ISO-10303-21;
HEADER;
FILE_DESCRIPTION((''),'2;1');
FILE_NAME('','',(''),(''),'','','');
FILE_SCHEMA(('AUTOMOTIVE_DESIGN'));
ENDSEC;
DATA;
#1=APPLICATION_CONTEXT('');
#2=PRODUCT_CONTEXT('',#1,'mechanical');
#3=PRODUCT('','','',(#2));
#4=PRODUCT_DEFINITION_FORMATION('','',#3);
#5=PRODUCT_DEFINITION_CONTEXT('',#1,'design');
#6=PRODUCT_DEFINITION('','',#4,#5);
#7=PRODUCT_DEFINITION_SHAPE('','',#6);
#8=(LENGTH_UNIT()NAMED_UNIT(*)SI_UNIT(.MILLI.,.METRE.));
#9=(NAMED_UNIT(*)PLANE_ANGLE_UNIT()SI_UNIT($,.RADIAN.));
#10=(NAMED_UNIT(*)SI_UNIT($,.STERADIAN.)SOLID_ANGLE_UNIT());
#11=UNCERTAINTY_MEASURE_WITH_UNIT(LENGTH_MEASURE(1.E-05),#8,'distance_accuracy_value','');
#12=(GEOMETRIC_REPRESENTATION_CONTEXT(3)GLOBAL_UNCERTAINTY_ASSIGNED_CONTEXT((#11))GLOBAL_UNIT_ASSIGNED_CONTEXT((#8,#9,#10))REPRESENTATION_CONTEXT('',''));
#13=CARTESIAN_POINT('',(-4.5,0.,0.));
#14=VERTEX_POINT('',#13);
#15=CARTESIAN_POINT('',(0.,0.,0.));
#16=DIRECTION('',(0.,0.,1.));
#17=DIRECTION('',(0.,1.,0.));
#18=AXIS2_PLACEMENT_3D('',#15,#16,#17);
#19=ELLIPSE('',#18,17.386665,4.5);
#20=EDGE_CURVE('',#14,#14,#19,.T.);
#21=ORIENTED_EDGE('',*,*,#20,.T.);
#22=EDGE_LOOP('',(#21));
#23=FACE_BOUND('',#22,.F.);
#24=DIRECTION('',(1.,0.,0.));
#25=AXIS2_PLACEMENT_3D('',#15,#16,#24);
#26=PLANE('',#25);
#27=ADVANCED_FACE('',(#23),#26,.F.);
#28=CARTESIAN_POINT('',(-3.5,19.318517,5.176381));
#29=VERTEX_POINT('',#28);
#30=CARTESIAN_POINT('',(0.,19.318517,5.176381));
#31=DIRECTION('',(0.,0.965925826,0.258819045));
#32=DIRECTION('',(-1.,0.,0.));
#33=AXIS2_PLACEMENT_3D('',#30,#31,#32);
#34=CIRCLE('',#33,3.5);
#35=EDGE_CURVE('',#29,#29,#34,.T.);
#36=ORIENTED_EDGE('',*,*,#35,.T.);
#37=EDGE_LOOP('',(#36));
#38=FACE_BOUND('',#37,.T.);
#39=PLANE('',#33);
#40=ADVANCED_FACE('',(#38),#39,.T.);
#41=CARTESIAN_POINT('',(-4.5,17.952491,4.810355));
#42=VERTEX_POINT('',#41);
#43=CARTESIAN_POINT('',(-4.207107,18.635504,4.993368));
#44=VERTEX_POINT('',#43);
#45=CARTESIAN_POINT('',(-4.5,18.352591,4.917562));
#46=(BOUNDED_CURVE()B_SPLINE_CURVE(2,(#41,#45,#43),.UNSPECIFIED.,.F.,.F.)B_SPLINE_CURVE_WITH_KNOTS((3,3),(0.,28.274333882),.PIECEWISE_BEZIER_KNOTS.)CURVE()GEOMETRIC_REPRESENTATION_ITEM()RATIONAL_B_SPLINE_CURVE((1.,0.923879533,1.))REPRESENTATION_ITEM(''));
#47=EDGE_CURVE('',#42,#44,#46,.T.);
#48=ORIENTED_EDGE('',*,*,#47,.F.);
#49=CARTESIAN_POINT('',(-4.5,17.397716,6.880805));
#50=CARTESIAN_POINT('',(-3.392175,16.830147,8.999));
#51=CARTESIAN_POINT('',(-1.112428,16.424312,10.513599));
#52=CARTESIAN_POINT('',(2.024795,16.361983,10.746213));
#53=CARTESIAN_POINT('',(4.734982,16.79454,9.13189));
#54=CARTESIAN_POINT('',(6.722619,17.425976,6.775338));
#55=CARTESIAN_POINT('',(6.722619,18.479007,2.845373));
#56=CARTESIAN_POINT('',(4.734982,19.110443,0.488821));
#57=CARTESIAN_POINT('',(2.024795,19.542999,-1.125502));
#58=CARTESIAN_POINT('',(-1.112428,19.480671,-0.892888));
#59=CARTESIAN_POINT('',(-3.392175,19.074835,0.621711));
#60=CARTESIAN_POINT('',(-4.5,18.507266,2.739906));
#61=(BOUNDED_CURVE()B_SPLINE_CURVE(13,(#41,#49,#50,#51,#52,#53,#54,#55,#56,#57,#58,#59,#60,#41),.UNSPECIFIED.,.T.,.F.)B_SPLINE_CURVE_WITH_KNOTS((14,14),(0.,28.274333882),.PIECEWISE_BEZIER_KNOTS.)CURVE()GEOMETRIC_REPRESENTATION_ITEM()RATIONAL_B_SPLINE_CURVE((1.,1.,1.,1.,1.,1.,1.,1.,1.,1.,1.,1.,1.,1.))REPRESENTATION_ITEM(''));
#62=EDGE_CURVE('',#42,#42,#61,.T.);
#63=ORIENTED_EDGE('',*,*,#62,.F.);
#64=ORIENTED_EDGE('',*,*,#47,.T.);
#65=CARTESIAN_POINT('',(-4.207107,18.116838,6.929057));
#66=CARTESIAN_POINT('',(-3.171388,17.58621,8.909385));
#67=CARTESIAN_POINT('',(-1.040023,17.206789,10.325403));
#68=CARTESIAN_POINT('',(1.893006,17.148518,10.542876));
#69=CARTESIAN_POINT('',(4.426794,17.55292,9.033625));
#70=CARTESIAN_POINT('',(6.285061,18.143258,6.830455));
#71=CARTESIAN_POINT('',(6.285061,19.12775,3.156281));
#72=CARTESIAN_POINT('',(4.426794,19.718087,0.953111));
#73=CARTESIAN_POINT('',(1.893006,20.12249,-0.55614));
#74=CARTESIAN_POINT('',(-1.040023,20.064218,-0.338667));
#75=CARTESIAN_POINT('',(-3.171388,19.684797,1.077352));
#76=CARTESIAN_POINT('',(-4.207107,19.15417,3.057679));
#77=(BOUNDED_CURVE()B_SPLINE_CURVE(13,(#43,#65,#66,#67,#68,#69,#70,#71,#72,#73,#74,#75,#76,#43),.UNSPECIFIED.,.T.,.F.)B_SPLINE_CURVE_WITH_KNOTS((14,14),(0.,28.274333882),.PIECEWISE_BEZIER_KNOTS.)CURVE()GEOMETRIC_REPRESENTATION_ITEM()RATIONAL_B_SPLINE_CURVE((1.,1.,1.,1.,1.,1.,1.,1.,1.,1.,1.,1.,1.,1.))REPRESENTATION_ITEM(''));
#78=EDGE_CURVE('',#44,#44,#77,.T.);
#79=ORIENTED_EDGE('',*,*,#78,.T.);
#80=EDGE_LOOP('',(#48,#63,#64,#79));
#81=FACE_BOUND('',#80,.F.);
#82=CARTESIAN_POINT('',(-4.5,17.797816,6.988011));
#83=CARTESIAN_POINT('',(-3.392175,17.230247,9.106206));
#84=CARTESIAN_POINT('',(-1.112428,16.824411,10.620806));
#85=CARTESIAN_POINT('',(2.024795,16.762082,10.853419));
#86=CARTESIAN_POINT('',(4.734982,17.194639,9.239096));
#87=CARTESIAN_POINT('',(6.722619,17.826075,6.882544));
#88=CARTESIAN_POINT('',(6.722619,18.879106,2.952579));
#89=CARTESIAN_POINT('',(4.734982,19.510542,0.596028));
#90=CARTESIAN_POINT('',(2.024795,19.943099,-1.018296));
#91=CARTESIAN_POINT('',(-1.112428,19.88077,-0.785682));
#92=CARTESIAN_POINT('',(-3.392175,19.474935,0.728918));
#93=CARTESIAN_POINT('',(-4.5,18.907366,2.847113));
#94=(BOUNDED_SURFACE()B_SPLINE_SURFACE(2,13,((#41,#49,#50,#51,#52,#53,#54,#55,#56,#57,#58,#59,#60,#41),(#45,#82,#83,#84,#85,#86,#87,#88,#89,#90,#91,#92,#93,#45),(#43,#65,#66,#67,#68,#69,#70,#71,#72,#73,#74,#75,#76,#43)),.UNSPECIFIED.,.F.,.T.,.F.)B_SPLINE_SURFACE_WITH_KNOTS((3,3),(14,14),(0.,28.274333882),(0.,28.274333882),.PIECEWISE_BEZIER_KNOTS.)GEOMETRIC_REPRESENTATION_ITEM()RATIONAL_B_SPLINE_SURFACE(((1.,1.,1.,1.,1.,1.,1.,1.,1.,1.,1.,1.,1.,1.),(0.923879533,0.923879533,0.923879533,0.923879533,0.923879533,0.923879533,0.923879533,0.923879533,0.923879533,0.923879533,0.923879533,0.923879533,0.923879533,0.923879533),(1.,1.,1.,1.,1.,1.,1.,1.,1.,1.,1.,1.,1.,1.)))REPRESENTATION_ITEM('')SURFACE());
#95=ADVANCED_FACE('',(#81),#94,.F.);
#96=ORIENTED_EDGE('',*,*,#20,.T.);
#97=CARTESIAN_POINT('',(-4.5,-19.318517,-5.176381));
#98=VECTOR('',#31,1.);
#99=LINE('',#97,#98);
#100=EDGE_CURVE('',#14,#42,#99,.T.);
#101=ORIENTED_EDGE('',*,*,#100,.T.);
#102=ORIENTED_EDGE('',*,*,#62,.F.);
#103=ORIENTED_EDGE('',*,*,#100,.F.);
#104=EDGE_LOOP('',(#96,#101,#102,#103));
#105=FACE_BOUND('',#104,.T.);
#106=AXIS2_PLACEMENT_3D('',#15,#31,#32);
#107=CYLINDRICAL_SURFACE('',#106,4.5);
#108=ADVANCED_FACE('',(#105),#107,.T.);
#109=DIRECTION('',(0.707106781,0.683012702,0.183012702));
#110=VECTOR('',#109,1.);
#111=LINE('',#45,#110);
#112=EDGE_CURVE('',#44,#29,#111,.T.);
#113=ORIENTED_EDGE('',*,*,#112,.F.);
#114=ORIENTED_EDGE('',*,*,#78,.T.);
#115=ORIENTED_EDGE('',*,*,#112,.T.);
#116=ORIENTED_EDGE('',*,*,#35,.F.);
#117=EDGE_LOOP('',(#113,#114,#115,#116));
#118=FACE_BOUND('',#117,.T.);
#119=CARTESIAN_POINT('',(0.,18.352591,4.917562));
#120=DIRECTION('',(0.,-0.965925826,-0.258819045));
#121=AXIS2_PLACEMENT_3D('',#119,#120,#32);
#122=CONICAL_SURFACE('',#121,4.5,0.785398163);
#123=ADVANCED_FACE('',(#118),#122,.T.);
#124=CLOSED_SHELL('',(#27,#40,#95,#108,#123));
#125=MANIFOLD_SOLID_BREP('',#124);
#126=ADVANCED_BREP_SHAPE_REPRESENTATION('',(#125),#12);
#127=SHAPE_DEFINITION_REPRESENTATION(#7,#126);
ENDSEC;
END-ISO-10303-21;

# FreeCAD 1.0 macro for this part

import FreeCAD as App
import Part
import Sketcher
from FreeCAD import Vector
Q = App.Units.Quantity


def edges_at(feature, points):
    """Names of the edges that pass closest to the given points."""
    edges = feature.Shape.Edges
    near = lambda p: min(range(len(edges)), key=lambda i: edges[i].distToShape(Part.Vertex(*p))[0])
    return sorted({f"Edge{near(p) + 1}" for p in points})


def add_polygon(sketch, points):
    """Adds a closed chain of lines whose ends are joined by coincident constraints."""
    first, n = sketch.GeometryCount, len(points)
    for a, b in zip(points, points[1:] + points[:1]):
        sketch.addGeometry(Part.LineSegment(App.Vector(*a, 0), App.Vector(*b, 0)), False)
    for i in range(n):
        sketch.addConstraint(Sketcher.Constraint("Coincident", first + i, 2, first + (i + 1) % n, 1))

doc = App.newDocument("Part")
body = doc.addObject("PartDesign::Body", "Body")

# Sketch on an angled plane
sketch1 = body.newObject("Sketcher::SketchObject", "Sketch")
sketch1.Placement = App.Placement(Vector(0, 0, 0), App.Rotation(Vector(-1, 0, 0), Vector(0, -0.258819045, 0.965925826), Vector(0, 0.965925826, 0.258819045), "ZXY"))
sketch1.addGeometry(Part.Circle(Vector(0, 0, 0), Vector(0, 0, 1), 4.5), False)
sketch1.addConstraint([
    Sketcher.Constraint("Coincident", 0, 3, -1, 1),
    Sketcher.Constraint("Diameter", 0, Q("9 mm")),
])
pad1 = body.newObject("PartDesign::Pad", "Pad")
pad1.Profile = sketch1
pad1.Length = 40
pad1.Midplane = True

# Sketch on XY plane
sketch2 = body.newObject("Sketcher::SketchObject", "Sketch001")
sketch2.AttachmentSupport = (doc.getObject("XY_Plane"), [""])
sketch2.MapMode = "FlatFace"
add_polygon(sketch2, [(-12, 30), (-12, -30), (12, -30), (12, 30)])  # lines 0-3
sketch2.addConstraint([
    Sketcher.Constraint("Vertical", 0),
    Sketcher.Constraint("Horizontal", 1),
    Sketcher.Constraint("Vertical", 2),
    Sketcher.Constraint("Horizontal", 3),
    Sketcher.Constraint("Symmetric", 0, 2, 2, 2, -1, 1),
    Sketcher.Constraint("DistanceX", 1, 1, 1, 2, Q("24.841386 mm")),
    Sketcher.Constraint("DistanceY", 0, 2, 0, 1, Q("60.813007 mm")),
])
pocket1 = body.newObject("PartDesign::Pocket", "Pocket")
pocket1.Profile = sketch2
pocket1.Length = 25
doc.recompute()

chamfer = body.newObject("PartDesign::Chamfer", "Chamfer")
chamfer.Base = (pocket1, edges_at(pocket1, [(4.5, 19.319, 5.176)]))
chamfer.Size = 1
doc.recompute()

fillet = body.newObject("PartDesign::Fillet", "Fillet")
fillet.Base = (chamfer, edges_at(chamfer, [(4.5, 18.353, 4.918)]))
fillet.Radius = 1

doc.recompute()
